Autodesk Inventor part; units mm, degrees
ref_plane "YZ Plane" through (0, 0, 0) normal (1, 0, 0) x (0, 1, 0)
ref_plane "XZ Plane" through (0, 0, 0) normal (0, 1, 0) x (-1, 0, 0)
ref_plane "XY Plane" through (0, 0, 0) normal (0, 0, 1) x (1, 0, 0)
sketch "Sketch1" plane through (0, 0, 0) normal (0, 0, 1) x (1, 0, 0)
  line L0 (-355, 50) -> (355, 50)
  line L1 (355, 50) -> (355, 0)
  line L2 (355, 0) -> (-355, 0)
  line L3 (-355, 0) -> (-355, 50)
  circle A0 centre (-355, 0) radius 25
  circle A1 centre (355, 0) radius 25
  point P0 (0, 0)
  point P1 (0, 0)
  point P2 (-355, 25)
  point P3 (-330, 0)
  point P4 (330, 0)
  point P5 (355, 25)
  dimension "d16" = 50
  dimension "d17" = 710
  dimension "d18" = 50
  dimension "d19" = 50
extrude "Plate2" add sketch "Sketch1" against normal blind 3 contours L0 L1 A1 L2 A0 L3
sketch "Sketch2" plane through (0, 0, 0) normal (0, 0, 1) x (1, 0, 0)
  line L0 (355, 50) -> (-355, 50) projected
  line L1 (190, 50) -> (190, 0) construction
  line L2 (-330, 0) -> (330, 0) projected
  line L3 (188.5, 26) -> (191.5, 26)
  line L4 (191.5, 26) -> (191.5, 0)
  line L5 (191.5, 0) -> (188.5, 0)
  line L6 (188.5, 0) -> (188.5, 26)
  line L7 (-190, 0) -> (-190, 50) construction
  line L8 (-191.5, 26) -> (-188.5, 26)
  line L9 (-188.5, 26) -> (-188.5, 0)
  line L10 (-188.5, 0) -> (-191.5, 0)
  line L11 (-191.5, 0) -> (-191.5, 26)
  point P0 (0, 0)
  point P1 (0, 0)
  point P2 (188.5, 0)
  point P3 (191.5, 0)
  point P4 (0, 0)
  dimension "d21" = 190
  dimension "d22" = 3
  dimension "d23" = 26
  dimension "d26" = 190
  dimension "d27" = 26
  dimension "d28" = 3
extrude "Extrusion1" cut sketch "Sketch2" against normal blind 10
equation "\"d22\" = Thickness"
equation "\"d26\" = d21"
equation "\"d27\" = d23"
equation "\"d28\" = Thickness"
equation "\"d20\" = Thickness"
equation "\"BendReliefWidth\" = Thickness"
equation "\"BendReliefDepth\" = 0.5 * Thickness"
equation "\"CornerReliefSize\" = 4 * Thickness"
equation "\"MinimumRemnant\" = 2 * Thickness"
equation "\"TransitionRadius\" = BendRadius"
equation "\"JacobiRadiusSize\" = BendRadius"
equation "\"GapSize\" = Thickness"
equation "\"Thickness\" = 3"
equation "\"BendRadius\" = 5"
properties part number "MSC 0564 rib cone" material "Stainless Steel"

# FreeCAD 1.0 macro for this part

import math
import FreeCAD as App
import Part
import Sketcher
from FreeCAD import Vector

doc = App.newDocument("Part")
body = doc.addObject("PartDesign::Body", "Body")

# Sketch on XY plane
sketch1 = body.newObject("Sketcher::SketchObject", "Sketch")
sketch1.AttachmentSupport = (doc.getObject("XY_Plane"), [""])
sketch1.MapMode = "FlatFace"
sketch1.addGeometry([
    Part.LineSegment(Vector(355, 50, 0), Vector(-355, 50, 0)),  # 0
    Part.LineSegment(Vector(-355, 50, 0), Vector(-355, 25, 0)),  # 1
    Part.ArcOfCircle(Part.Circle(Vector(-355, 0, 0), Vector(0, 0, 1), 25), math.radians(0), math.radians(90)),  # 2
    Part.LineSegment(Vector(-330, 0, 0), Vector(330, 0, 0)),  # 3
    Part.ArcOfCircle(Part.Circle(Vector(355, 0, 0), Vector(0, 0, 1), 25), math.radians(90), math.radians(180)),  # 4
    Part.LineSegment(Vector(355, 25, 0), Vector(355, 50, 0)),  # 5
], False)
sketch1.addConstraint([
    Sketcher.Constraint("Coincident", 0, 2, 1, 1),
    Sketcher.Constraint("Coincident", 1, 2, 2, 2),
    Sketcher.Constraint("Coincident", 2, 1, 3, 1),
    Sketcher.Constraint("Coincident", 3, 2, 4, 2),
    Sketcher.Constraint("Coincident", 4, 1, 5, 1),
    Sketcher.Constraint("Coincident", 5, 2, 0, 1),
    Sketcher.Constraint("Horizontal", 0),
    Sketcher.Constraint("Vertical", 1),
    Sketcher.Constraint("Horizontal", 3),
    Sketcher.Constraint("Vertical", 5),
    Sketcher.Constraint("Equal", 2, 4),
    Sketcher.Constraint("Symmetric", 2, 3, 4, 3, -1, 1),
    Sketcher.Constraint("Symmetric", 1, 2, 4, 1, -2),
    Sketcher.Constraint("PointOnObject", 2, 1, -1),
    Sketcher.Constraint("Vertical", 2, 3, 0, 2),
    Sketcher.Constraint("Radius", 2, 25.0),
    Sketcher.Constraint("DistanceX", 0, 2, 0, 1, 710.0),
    Sketcher.Constraint("DistanceY", -1, 1, 0, 2, 50.0),
])
pad1 = body.newObject("PartDesign::Pad", "Pad")
pad1.Profile = sketch1
pad1.Length = 3
pad1.Reversed = True

# Sketch on XY plane
sketch2 = body.newObject("Sketcher::SketchObject", "Sketch001")
sketch2.AttachmentSupport = (doc.getObject("XY_Plane"), [""])
sketch2.MapMode = "FlatFace"
sketch2.addGeometry([
    Part.LineSegment(Vector(-191.5, 26, 0), Vector(-191.5, 0, 0)),  # 0
    Part.LineSegment(Vector(-191.5, 0, 0), Vector(-188.5, 0, 0)),  # 1
    Part.LineSegment(Vector(-188.5, 0, 0), Vector(-188.5, 26, 0)),  # 2
    Part.LineSegment(Vector(-188.5, 26, 0), Vector(-191.5, 26, 0)),  # 3
    Part.LineSegment(Vector(188.5, 26, 0), Vector(188.5, 0, 0)),  # 4
    Part.LineSegment(Vector(188.5, 0, 0), Vector(191.5, 0, 0)),  # 5
    Part.LineSegment(Vector(191.5, 0, 0), Vector(191.5, 26, 0)),  # 6
    Part.LineSegment(Vector(191.5, 26, 0), Vector(188.5, 26, 0)),  # 7
], False)
sketch2.addConstraint([
    Sketcher.Constraint("Coincident", 0, 2, 1, 1),
    Sketcher.Constraint("Coincident", 1, 2, 2, 1),
    Sketcher.Constraint("Coincident", 2, 2, 3, 1),
    Sketcher.Constraint("Coincident", 3, 2, 0, 1),
    Sketcher.Constraint("Coincident", 4, 2, 5, 1),
    Sketcher.Constraint("Coincident", 5, 2, 6, 1),
    Sketcher.Constraint("Coincident", 6, 2, 7, 1),
    Sketcher.Constraint("Coincident", 7, 2, 4, 1),
    Sketcher.Constraint("Vertical", 0),
    Sketcher.Constraint("Horizontal", 1),
    Sketcher.Constraint("Vertical", 2),
    Sketcher.Constraint("Horizontal", 3),
    Sketcher.Constraint("Vertical", 4),
    Sketcher.Constraint("Horizontal", 5),
    Sketcher.Constraint("Vertical", 6),
    Sketcher.Constraint("Horizontal", 7),
    Sketcher.Constraint("Symmetric", 1, 2, 4, 2, -1, 1),
    Sketcher.Constraint("Symmetric", 0, 2, 5, 2, -2),
    Sketcher.Constraint("Horizontal", 3, 2, 6, 2),
    Sketcher.Constraint("DistanceX", 1, 1, 1, 2, 3.0),
    Sketcher.Constraint("DistanceY", 0, 2, 0, 1, 26.0),
    Sketcher.Constraint("DistanceX", 1, 2, 4, 2, 377.0),
])
pocket1 = body.newObject("PartDesign::Pocket", "Pocket")
pocket1.Profile = sketch2
pocket1.Length = 10

doc.recompute()
